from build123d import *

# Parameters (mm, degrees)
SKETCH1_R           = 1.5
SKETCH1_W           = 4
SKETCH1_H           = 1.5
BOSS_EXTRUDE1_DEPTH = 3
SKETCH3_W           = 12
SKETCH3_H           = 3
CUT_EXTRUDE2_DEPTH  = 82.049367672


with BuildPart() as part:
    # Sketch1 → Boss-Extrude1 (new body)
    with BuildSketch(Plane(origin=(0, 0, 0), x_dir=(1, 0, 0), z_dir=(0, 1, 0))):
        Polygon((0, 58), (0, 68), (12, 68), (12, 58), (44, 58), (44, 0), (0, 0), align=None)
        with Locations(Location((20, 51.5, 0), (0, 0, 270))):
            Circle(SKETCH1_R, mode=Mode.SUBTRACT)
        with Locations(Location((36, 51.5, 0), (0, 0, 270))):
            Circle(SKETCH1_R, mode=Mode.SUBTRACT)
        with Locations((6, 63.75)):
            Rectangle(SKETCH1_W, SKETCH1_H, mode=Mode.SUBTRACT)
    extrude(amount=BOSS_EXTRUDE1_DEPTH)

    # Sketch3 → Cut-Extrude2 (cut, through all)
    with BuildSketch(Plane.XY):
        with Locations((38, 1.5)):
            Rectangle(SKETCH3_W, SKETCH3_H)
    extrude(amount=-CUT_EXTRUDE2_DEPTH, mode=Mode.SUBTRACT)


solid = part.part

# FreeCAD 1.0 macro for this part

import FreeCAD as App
import Part
import Sketcher
from FreeCAD import Vector
Q = App.Units.Quantity

doc = App.newDocument("Part")
body = doc.addObject("PartDesign::Body", "Body")

sketch1 = body.newObject("Sketcher::SketchObject", "Sketch")
sketch1.AttachmentSupport = (doc.getObject("XZ_Plane"), [""])
sketch1.MapMode = "FlatFace"
sketch1.addGeometry(Part.LineSegment(Vector(0, -68, 0), Vector(0, 0, 0)), False)
sketch1.addGeometry(Part.LineSegment(Vector(0, 0, 0), Vector(44, 0, 0)), False)
sketch1.addGeometry(Part.LineSegment(Vector(44, 0, 0), Vector(44, -58, 0)), False)
sketch1.addGeometry(Part.LineSegment(Vector(44, -58, 0), Vector(12, -58, 0)), False)
sketch1.addGeometry(Part.LineSegment(Vector(12, -58, 0), Vector(12, -68, 0)), False)
sketch1.addGeometry(Part.LineSegment(Vector(12, -68, 0), Vector(0, -68, 0)), False)
sketch1.addGeometry(Part.Circle(Vector(36, -51.5, 0), Vector(0, 0, 1), 1.5), False)
sketch1.addGeometry(Part.Circle(Vector(20, -51.5, 0), Vector(0, 0, 1), 1.5), False)
sketch1.addGeometry(Part.LineSegment(Vector(4, -63, 0), Vector(4, -64.5, 0)), False)
sketch1.addGeometry(Part.LineSegment(Vector(4, -64.5, 0), Vector(8, -64.5, 0)), False)
sketch1.addGeometry(Part.LineSegment(Vector(8, -64.5, 0), Vector(8, -63, 0)), False)
sketch1.addGeometry(Part.LineSegment(Vector(8, -63, 0), Vector(4, -63, 0)), False)
sketch1.addConstraint(Sketcher.Constraint("Coincident", 0, 2, 1, 1))
sketch1.addConstraint(Sketcher.Constraint("Coincident", 1, 2, 2, 1))
sketch1.addConstraint(Sketcher.Constraint("Coincident", 2, 2, 3, 1))
sketch1.addConstraint(Sketcher.Constraint("Coincident", 3, 2, 4, 1))
sketch1.addConstraint(Sketcher.Constraint("Coincident", 4, 2, 5, 1))
sketch1.addConstraint(Sketcher.Constraint("Coincident", 5, 2, 0, 1))
sketch1.addConstraint(Sketcher.Constraint("Coincident", 8, 2, 9, 1))
sketch1.addConstraint(Sketcher.Constraint("Coincident", 9, 2, 10, 1))
sketch1.addConstraint(Sketcher.Constraint("Coincident", 10, 2, 11, 1))
sketch1.addConstraint(Sketcher.Constraint("Coincident", 11, 2, 8, 1))
sketch1.addConstraint(Sketcher.Constraint("Vertical", 0))
sketch1.addConstraint(Sketcher.Constraint("Horizontal", 1))
sketch1.addConstraint(Sketcher.Constraint("Vertical", 2))
sketch1.addConstraint(Sketcher.Constraint("Horizontal", 3))
sketch1.addConstraint(Sketcher.Constraint("Vertical", 4))
sketch1.addConstraint(Sketcher.Constraint("Horizontal", 5))
sketch1.addConstraint(Sketcher.Constraint("Vertical", 8))
sketch1.addConstraint(Sketcher.Constraint("Horizontal", 9))
sketch1.addConstraint(Sketcher.Constraint("Vertical", 10))
sketch1.addConstraint(Sketcher.Constraint("Horizontal", 11))
sketch1.addConstraint(Sketcher.Constraint("Coincident", 0, 2, -1, 1))
sketch1.addConstraint(Sketcher.Constraint("Equal", 6, 7))
sketch1.addConstraint(Sketcher.Constraint("Horizontal", 6, 3, 7, 3))
sketch1.addConstraint(Sketcher.Constraint("Diameter", 6, Q("3 mm")))
sketch1.addConstraint(Sketcher.Constraint("DistanceX", 1, 1, 1, 2, Q("44 mm")))
sketch1.addConstraint(Sketcher.Constraint("DistanceX", 3, 2, 3, 1, Q("32 mm")))
sketch1.addConstraint(Sketcher.Constraint("DistanceX", 9, 1, 9, 2, Q("4 mm")))
sketch1.addConstraint(Sketcher.Constraint("DistanceY", 0, 1, 0, 2, Q("68 mm")))
sketch1.addConstraint(Sketcher.Constraint("DistanceY", 2, 2, 2, 1, Q("58 mm")))
sketch1.addConstraint(Sketcher.Constraint("DistanceY", 8, 2, 8, 1, Q("1.5 mm")))
sketch1.addConstraint(Sketcher.Constraint("DistanceX", -1, 1, 6, 3, Q("36 mm")))
sketch1.addConstraint(Sketcher.Constraint("DistanceX", -1, 1, 7, 3, Q("20 mm")))
sketch1.addConstraint(Sketcher.Constraint("DistanceX", -1, 1, 8, 2, Q("4 mm")))
sketch1.addConstraint(Sketcher.Constraint("DistanceY", 10, 2, -1, 1, Q("63 mm")))
sketch1.addConstraint(Sketcher.Constraint("DistanceY", 8, 2, 7, 3, Q("13 mm")))
pad1 = body.newObject("PartDesign::Pad", "Pad")
pad1.Profile = sketch1
pad1.Length = 3
pad1.Reversed = True

sketch2 = body.newObject("Sketcher::SketchObject", "Sketch001")
sketch2.AttachmentSupport = (doc.getObject("XY_Plane"), [""])
sketch2.MapMode = "FlatFace"
sketch2.addGeometry(Part.LineSegment(Vector(32, 3, 0), Vector(32, 0, 0)), False)
sketch2.addGeometry(Part.LineSegment(Vector(32, 0, 0), Vector(44, 0, 0)), False)
sketch2.addGeometry(Part.LineSegment(Vector(44, 0, 0), Vector(44, 3, 0)), False)
sketch2.addGeometry(Part.LineSegment(Vector(44, 3, 0), Vector(32, 3, 0)), False)
sketch2.addConstraint(Sketcher.Constraint("Coincident", 0, 2, 1, 1))
sketch2.addConstraint(Sketcher.Constraint("Coincident", 1, 2, 2, 1))
sketch2.addConstraint(Sketcher.Constraint("Coincident", 2, 2, 3, 1))
sketch2.addConstraint(Sketcher.Constraint("Coincident", 3, 2, 0, 1))
sketch2.addConstraint(Sketcher.Constraint("Vertical", 0))
sketch2.addConstraint(Sketcher.Constraint("Horizontal", 1))
sketch2.addConstraint(Sketcher.Constraint("Vertical", 2))
sketch2.addConstraint(Sketcher.Constraint("Horizontal", 3))
sketch2.addConstraint(Sketcher.Constraint("PointOnObject", 0, 2, -1))
sketch2.addConstraint(Sketcher.Constraint("DistanceX", 1, 1, 1, 2, Q("12 mm")))
sketch2.addConstraint(Sketcher.Constraint("DistanceY", 0, 2, 0, 1, Q("3 mm")))
sketch2.addConstraint(Sketcher.Constraint("DistanceX", -1, 1, 0, 2, Q("32 mm")))
pocket1 = body.newObject("PartDesign::Pocket", "Pocket")
pocket1.Profile = sketch2
pocket1.Type = "ThroughAll"

doc.recompute()
